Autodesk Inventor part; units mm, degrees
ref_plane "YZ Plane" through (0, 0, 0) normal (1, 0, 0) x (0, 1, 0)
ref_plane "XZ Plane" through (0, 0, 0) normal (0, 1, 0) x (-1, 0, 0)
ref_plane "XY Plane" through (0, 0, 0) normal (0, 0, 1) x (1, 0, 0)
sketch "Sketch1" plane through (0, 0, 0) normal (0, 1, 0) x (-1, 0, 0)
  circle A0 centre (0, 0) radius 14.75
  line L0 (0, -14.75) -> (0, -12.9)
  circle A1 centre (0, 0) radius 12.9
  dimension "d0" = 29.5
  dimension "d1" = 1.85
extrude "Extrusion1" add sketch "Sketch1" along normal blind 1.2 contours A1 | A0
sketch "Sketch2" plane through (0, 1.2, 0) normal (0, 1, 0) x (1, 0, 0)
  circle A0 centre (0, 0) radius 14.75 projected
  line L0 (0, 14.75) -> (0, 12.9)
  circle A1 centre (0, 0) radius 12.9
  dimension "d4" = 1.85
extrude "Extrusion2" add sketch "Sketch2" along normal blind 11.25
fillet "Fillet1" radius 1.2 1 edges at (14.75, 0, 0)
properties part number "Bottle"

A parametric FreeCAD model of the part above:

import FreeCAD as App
import Part
import Sketcher

V = App.Vector
Q = App.Units.Quantity


def edges_at(feature, points):
    """Names of the edges that pass closest to the given points."""
    edges = feature.Shape.Edges
    near = lambda p: min(range(len(edges)), key=lambda i: edges[i].distToShape(Part.Vertex(*p))[0])
    return sorted({f"Edge{near(p) + 1}" for p in points})

doc = App.newDocument("Part")
body = doc.addObject("PartDesign::Body", "Body")

# Sketch on XZ plane
sketch1 = doc.addObject("Sketcher::SketchObject", "Sketch")
body.addObject(sketch1)
sketch1.AttachmentSupport = (doc.XZ_Plane, [""])
sketch1.MapMode = "FlatFace"
sketch1.addGeometry(Part.Circle(V(0, 0, 0), V(0, 0, 1), 15), False)
sketch1.addConstraint([
    Sketcher.Constraint("Coincident", 0, 3, -1, 1),
    Sketcher.Constraint("Diameter", 0, Q("29.5 mm")),
])
pad1 = doc.addObject("PartDesign::Pad", "Pad")
body.addObject(pad1)
pad1.Profile = sketch1
pad1.Length = 1.2
pad1.Reversed = True

# Sketch on XZ plane
sketch2 = doc.addObject("Sketcher::SketchObject", "Sketch001")
body.addObject(sketch2)
sketch2.AttachmentSupport = (doc.XZ_Plane, [""])
sketch2.MapMode = "FlatFace"
sketch2.AttachmentOffset = App.Placement(V(0, 0, -1.2), App.Rotation())
sketch2.addGeometry([
    Part.Circle(V(0, 0, 0), V(0, 0, 1), 15),
    Part.Circle(V(0, 0, 0), V(0, 0, 1), 13),
], False)
sketch2.addConstraint([
    Sketcher.Constraint("Coincident", 0, 3, -1, 1),
    Sketcher.Constraint("Coincident", 1, 3, -1, 1),
    Sketcher.Constraint("Diameter", 0, Q("29.5 mm")),
    Sketcher.Constraint("Diameter", 1, Q("25.8 mm")),
])
pad2 = doc.addObject("PartDesign::Pad", "Pad001")
body.addObject(pad2)
pad2.Profile = sketch2
pad2.Length = 11.25
pad2.Reversed = True
doc.recompute()

fillet = doc.addObject("PartDesign::Fillet", "Fillet")
body.addObject(fillet)
fillet.Base = (pad2, edges_at(pad2, [(14.75, 0, 0)]))
fillet.Radius = 1.2

doc.recompute()
